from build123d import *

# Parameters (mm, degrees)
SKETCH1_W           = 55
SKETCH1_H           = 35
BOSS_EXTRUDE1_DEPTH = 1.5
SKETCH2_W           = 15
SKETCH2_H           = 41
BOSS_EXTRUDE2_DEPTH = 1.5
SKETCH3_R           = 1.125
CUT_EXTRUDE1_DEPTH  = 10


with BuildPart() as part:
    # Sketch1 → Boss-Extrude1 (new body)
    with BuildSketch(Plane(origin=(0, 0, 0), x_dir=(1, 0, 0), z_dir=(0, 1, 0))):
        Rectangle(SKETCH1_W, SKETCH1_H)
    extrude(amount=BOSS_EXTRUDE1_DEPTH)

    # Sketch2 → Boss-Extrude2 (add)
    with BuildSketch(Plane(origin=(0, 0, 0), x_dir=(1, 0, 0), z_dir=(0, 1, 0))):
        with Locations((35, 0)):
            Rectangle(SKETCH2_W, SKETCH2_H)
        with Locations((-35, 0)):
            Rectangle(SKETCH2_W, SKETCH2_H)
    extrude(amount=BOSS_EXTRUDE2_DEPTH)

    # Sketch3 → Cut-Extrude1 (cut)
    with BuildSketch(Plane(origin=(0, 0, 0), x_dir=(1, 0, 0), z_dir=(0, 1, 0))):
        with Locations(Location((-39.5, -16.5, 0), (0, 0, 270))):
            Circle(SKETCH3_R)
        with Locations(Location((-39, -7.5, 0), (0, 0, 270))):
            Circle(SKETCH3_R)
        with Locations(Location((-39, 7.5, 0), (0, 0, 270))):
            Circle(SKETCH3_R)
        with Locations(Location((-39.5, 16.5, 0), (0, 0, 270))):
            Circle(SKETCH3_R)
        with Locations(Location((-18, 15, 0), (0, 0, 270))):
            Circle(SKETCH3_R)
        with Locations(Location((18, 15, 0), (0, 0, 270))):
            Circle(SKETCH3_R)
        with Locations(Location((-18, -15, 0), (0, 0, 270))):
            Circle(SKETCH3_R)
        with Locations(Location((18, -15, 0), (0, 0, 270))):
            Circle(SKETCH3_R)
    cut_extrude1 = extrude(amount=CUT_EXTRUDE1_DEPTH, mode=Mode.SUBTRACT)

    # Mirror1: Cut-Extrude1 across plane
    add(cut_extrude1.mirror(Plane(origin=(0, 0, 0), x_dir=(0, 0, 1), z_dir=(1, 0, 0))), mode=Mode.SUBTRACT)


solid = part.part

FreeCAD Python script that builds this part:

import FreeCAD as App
import Part
import Sketcher
from FreeCAD import Vector

doc = App.newDocument("Part")
params = doc.addObject("Spreadsheet::Sheet", "Params")
for row, (alias, value) in enumerate([
    ("sketch1_width", "55 mm"),
    ("sketch1_height", "35 mm"),
    ("pad1_length", "1.5 mm"),
    ("sketch2_width", "15 mm"),
    ("sketch2_height", "41 mm"),
    ("pad2_length", "1.5 mm"),
    ("sketch3_diameter", "2.25 mm"),
    ("pocket1_length", "10 mm"),
], start=1):
    params.set(f"A{row}", alias)
    params.set(f"B{row}", "=" + value)
    params.setAlias(f"B{row}", alias)

body = doc.addObject("PartDesign::Body", "Body")

# Sketch on XZ plane
sketch1 = body.newObject("Sketcher::SketchObject", "Sketch")
sketch1.AttachmentSupport = (doc.getObject("XZ_Plane"), [""])
sketch1.MapMode = "FlatFace"
sketch1.addGeometry([
    Part.LineSegment(Vector(-28, -18, 0), Vector(-28, 18, 0)),
    Part.LineSegment(Vector(-28, 18, 0), Vector(28, 18, 0)),
    Part.LineSegment(Vector(28, 18, 0), Vector(28, -18, 0)),
    Part.LineSegment(Vector(28, -18, 0), Vector(-28, -18, 0)),
], False)
sketch1.addConstraint([
    Sketcher.Constraint("Coincident", 0, 2, 1, 1),
    Sketcher.Constraint("Coincident", 1, 2, 2, 1),
    Sketcher.Constraint("Coincident", 2, 2, 3, 1),
    Sketcher.Constraint("Coincident", 3, 2, 0, 1),
    Sketcher.Constraint("Vertical", 0),
    Sketcher.Constraint("Horizontal", 1),
    Sketcher.Constraint("Vertical", 2),
    Sketcher.Constraint("Horizontal", 3),
    Sketcher.Constraint("Symmetric", 0, 2, 2, 2, -1, 1),
    Sketcher.Constraint("DistanceX", 1, 1, 1, 2, 55.0),
    Sketcher.Constraint("DistanceY", 0, 1, 0, 2, 35.0),
])
sketch1.setExpression("Constraints[9]", "Params.sketch1_width")
sketch1.setExpression("Constraints[10]", "Params.sketch1_height")
pad1 = body.newObject("PartDesign::Pad", "Pad")
pad1.Profile = sketch1
pad1.setExpression("Length", "Params.pad1_length")
pad1.Reversed = True

# Sketch on XZ plane
sketch2 = body.newObject("Sketcher::SketchObject", "Sketch001")
sketch2.AttachmentSupport = (doc.getObject("XZ_Plane"), [""])
sketch2.MapMode = "FlatFace"
sketch2.addGeometry([
    Part.LineSegment(Vector(28, -20, 0), Vector(28, 20, 0)),  # 0
    Part.LineSegment(Vector(28, 20, 0), Vector(42, 20, 0)),  # 1
    Part.LineSegment(Vector(42, 20, 0), Vector(42, -20, 0)),  # 2
    Part.LineSegment(Vector(42, -20, 0), Vector(28, -20, 0)),  # 3
    Part.LineSegment(Vector(-42, -20, 0), Vector(-42, 20, 0)),  # 4
    Part.LineSegment(Vector(-42, 20, 0), Vector(-28, 20, 0)),  # 5
    Part.LineSegment(Vector(-28, 20, 0), Vector(-28, -20, 0)),  # 6
    Part.LineSegment(Vector(-28, -20, 0), Vector(-42, -20, 0)),  # 7
], False)
sketch2.addConstraint([
    Sketcher.Constraint("Coincident", 0, 2, 1, 1),
    Sketcher.Constraint("Coincident", 1, 2, 2, 1),
    Sketcher.Constraint("Coincident", 2, 2, 3, 1),
    Sketcher.Constraint("Coincident", 3, 2, 0, 1),
    Sketcher.Constraint("Coincident", 4, 2, 5, 1),
    Sketcher.Constraint("Coincident", 5, 2, 6, 1),
    Sketcher.Constraint("Coincident", 6, 2, 7, 1),
    Sketcher.Constraint("Coincident", 7, 2, 4, 1),
    Sketcher.Constraint("Vertical", 0),
    Sketcher.Constraint("Horizontal", 1),
    Sketcher.Constraint("Vertical", 2),
    Sketcher.Constraint("Horizontal", 3),
    Sketcher.Constraint("Vertical", 4),
    Sketcher.Constraint("Horizontal", 5),
    Sketcher.Constraint("Vertical", 6),
    Sketcher.Constraint("Horizontal", 7),
    Sketcher.Constraint("Symmetric", 2, 2, 4, 2, -1, 1),
    Sketcher.Constraint("Symmetric", 0, 2, 6, 2, -1, 1),
    Sketcher.Constraint("Horizontal", 1, 2, 4, 2),
    Sketcher.Constraint("DistanceX", 1, 1, 1, 2, 15.0),
    Sketcher.Constraint("DistanceY", 0, 1, 0, 2, 41.0),
    Sketcher.Constraint("DistanceX", 4, 2, 0, 2, 70.0),
])
sketch2.setExpression("Constraints[19]", "Params.sketch2_width")
sketch2.setExpression("Constraints[20]", "Params.sketch2_height")
pad2 = body.newObject("PartDesign::Pad", "Pad001")
pad2.Profile = sketch2
pad2.setExpression("Length", "Params.pad2_length")
pad2.Reversed = True

# Sketch on XZ plane
sketch3 = body.newObject("Sketcher::SketchObject", "Sketch002")
sketch3.AttachmentSupport = (doc.getObject("XZ_Plane"), [""])
sketch3.MapMode = "FlatFace"
sketch3.addGeometry([
    Part.Circle(Vector(-39.5, 16.5, 0), Vector(0, 0, 1), 1.1),  # 0
    Part.Circle(Vector(-39, 7.5, 0), Vector(0, 0, 1), 1.1),  # 1
    Part.Circle(Vector(-39, -7.5, 0), Vector(0, 0, 1), 1.1),  # 2
    Part.Circle(Vector(-39.5, -16.5, 0), Vector(0, 0, 1), 1.1),  # 3
    Part.Circle(Vector(-18, -15, 0), Vector(0, 0, 1), 1.1),  # 4
    Part.Circle(Vector(18, -15, 0), Vector(0, 0, 1), 1.1),  # 5
    Part.Circle(Vector(-18, 15, 0), Vector(0, 0, 1), 1.1),  # 6
    Part.Circle(Vector(18, 15, 0), Vector(0, 0, 1), 1.1),  # 7
], False)
sketch3.addConstraint([
    Sketcher.Constraint("Equal", 0, 1),
    Sketcher.Constraint("Equal", 1, 2),
    Sketcher.Constraint("Equal", 2, 3),
    Sketcher.Constraint("Equal", 3, 4),
    Sketcher.Constraint("Equal", 4, 5),
    Sketcher.Constraint("Equal", 5, 6),
    Sketcher.Constraint("Equal", 6, 7),
    Sketcher.Constraint("Symmetric", 5, 3, 6, 3, -1, 1),
    Sketcher.Constraint("Symmetric", 4, 3, 7, 3, -1, 1),
    Sketcher.Constraint("Symmetric", 4, 3, 5, 3, -2),
    Sketcher.Constraint("Symmetric", 1, 3, 2, 3, -1),
    Sketcher.Constraint("Symmetric", 0, 3, 3, 3, -1),
    Sketcher.Constraint("Diameter", 0, 2.25),
    Sketcher.Constraint("DistanceX", 1, 3, -1, 1, 39.0),
    Sketcher.Constraint("DistanceX", 4, 3, -1, 1, 18.0),
    Sketcher.Constraint("DistanceY", 4, 3, -1, 1, 15.0),
    Sketcher.Constraint("DistanceY", 1, 3, 0, 3, 9.0),
    Sketcher.Constraint("DistanceY", 2, 3, 1, 3, 15.0),
    Sketcher.Constraint("DistanceX", 0, 3, -1, 1, 39.5),
])
sketch3.setExpression("Constraints[12]", "Params.sketch3_diameter")
pocket1 = body.newObject("PartDesign::Pocket", "Pocket")
pocket1.Profile = sketch3
pocket1.setExpression("Length", "Params.pocket1_length")
doc.recompute()

mirrored = body.newObject("PartDesign::Mirrored", "Mirrored")
mirrored.Originals = [pocket1]
mirrored.MirrorPlane = (doc.getObject("YZ_Plane"), [""])
body.Tip = mirrored

doc.recompute()
